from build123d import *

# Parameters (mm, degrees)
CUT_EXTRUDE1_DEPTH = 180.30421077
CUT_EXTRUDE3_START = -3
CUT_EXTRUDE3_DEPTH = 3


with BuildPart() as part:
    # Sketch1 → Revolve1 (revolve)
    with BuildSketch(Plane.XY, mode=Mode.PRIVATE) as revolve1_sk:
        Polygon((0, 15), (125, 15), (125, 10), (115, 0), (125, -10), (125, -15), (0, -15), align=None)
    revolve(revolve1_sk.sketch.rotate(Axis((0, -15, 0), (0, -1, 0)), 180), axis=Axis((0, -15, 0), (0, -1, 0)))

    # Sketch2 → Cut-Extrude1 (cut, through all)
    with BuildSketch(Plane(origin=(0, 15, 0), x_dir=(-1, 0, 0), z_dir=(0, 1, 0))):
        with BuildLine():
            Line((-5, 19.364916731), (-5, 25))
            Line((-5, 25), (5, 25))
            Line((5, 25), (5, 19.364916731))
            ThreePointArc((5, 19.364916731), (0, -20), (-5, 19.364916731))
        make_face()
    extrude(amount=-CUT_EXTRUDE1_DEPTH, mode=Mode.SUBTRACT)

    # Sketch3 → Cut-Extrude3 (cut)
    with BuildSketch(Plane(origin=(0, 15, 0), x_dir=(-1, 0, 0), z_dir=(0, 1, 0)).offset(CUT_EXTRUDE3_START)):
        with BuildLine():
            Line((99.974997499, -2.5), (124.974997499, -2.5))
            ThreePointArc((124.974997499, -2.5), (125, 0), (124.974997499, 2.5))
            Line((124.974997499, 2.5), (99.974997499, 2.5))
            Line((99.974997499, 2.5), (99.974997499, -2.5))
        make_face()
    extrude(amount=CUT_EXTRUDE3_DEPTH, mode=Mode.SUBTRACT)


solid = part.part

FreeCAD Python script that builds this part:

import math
import FreeCAD as App
import Part
import Sketcher
Q = App.Units.Quantity


def add_polygon(sketch, points):
    """Adds a closed chain of lines whose ends are joined by coincident constraints."""
    first, n = sketch.GeometryCount, len(points)
    for a, b in zip(points, points[1:] + points[:1]):
        sketch.addGeometry(Part.LineSegment(App.Vector(*a, 0), App.Vector(*b, 0)), False)
    for i in range(n):
        sketch.addConstraint(Sketcher.Constraint("Coincident", first + i, 2, first + (i + 1) % n, 1))

doc = App.newDocument("Part")
body = doc.addObject("PartDesign::Body", "Body")

sketch1 = body.newObject("Sketcher::SketchObject", "Sketch")
sketch1.AttachmentSupport = (doc.getObject("XY_Plane"), [""])
sketch1.MapMode = "FlatFace"
add_polygon(sketch1, [(125, 15), (0, 15), (0, -15), (125, -15), (125, -10), (115, 0), (125, 10)])
sketch1.addConstraint([
    Sketcher.Constraint("Horizontal", 0),
    Sketcher.Constraint("Vertical", 1),
    Sketcher.Constraint("Horizontal", 2),
    Sketcher.Constraint("Vertical", 3),
    Sketcher.Constraint("Vertical", 6),
    Sketcher.Constraint("Symmetric", 0, 2, 1, 2, -1, 1),
    Sketcher.Constraint("Symmetric", 3, 2, 5, 2, -1),
    Sketcher.Constraint("PointOnObject", 4, 2, -1),
    Sketcher.Constraint("Perpendicular", 4, 5),
    Sketcher.Constraint("DistanceX", 0, 2, 0, 1, Q("125 mm")),
    Sketcher.Constraint("DistanceY", 1, 2, 1, 1, Q("30 mm")),
    Sketcher.Constraint("DistanceY", 3, 1, 3, 2, Q("5 mm")),
])
revolution = body.newObject("PartDesign::Revolution", "Revolution")
revolution.Profile = sketch1
revolution.ReferenceAxis = (sketch1, ["V_Axis"])
revolution.Angle = 360

sketch2 = body.newObject("Sketcher::SketchObject", "Sketch001")
sketch2.AttachmentSupport = (doc.getObject("XZ_Plane"), [""])
sketch2.MapMode = "FlatFace"
sketch2.AttachmentOffset = App.Placement(App.Vector(0, 0, -15), App.Rotation())
sketch2.addGeometry([
    Part.LineSegment(App.Vector(5, 25, 0), App.Vector(5, 19, 0)),
    Part.ArcOfCircle(Part.Circle(App.Vector(0, 0, 0), App.Vector(0, 0, 1), 20), math.radians(104), math.radians(436)),
    Part.LineSegment(App.Vector(-5, 19, 0), App.Vector(-5, 25, 0)),
    Part.LineSegment(App.Vector(-5, 25, 0), App.Vector(5, 25, 0)),
], False)
sketch2.addConstraint([
    Sketcher.Constraint("Coincident", 0, 2, 1, 2),
    Sketcher.Constraint("Coincident", 1, 1, 2, 1),
    Sketcher.Constraint("Coincident", 2, 2, 3, 1),
    Sketcher.Constraint("Coincident", 3, 2, 0, 1),
    Sketcher.Constraint("Vertical", 0),
    Sketcher.Constraint("Vertical", 2),
    Sketcher.Constraint("Horizontal", 3),
    Sketcher.Constraint("Coincident", 1, 3, -1, 1),
    Sketcher.Constraint("Horizontal", 0, 2, 1, 1),
    Sketcher.Constraint("Radius", 1, Q("20 mm")),
    Sketcher.Constraint("DistanceX", 3, 1, 3, 2, Q("10 mm")),
    Sketcher.Constraint("DistanceY", -1, 1, 2, 2, Q("25 mm")),
])
pocket1 = body.newObject("PartDesign::Pocket", "Pocket")
pocket1.Profile = sketch2
pocket1.Type = "ThroughAll"
pocket1.Reversed = True

sketch3 = body.newObject("Sketcher::SketchObject", "Sketch002")
sketch3.AttachmentSupport = (doc.getObject("XZ_Plane"), [""])
sketch3.MapMode = "FlatFace"
sketch3.AttachmentOffset = App.Placement(App.Vector(0, 0, -12), App.Rotation())
sketch3.addGeometry([
    Part.LineSegment(App.Vector(-100, -2, 0), App.Vector(-125, -2, 0)),
    Part.ArcOfCircle(Part.Circle(App.Vector(0, 0, 0), App.Vector(0, 0, 1), 125), math.radians(178.85), math.radians(181.15)),
    Part.LineSegment(App.Vector(-125, 2, 0), App.Vector(-100, 2, 0)),
    Part.LineSegment(App.Vector(-100, 2, 0), App.Vector(-100, -2, 0)),
], False)
sketch3.addConstraint([
    Sketcher.Constraint("Coincident", 0, 2, 1, 2),
    Sketcher.Constraint("Coincident", 1, 1, 2, 1),
    Sketcher.Constraint("Coincident", 2, 2, 3, 1),
    Sketcher.Constraint("Coincident", 3, 2, 0, 1),
    Sketcher.Constraint("Horizontal", 0),
    Sketcher.Constraint("Horizontal", 2),
    Sketcher.Constraint("Vertical", 3),
    Sketcher.Constraint("Coincident", 1, 3, -1, 1),
    Sketcher.Constraint("Vertical", 0, 2, 1, 1),
    Sketcher.Constraint("DistanceX", 0, 2, 0, 1, Q("25 mm")),
    Sketcher.Constraint("DistanceY", 3, 2, 3, 1, Q("5 mm")),
    Sketcher.Constraint("Radius", 1, Q("124.999998 mm")),
])
pocket2 = body.newObject("PartDesign::Pocket", "Pocket001")
pocket2.Profile = sketch3
pocket2.Length = 3

doc.recompute()
